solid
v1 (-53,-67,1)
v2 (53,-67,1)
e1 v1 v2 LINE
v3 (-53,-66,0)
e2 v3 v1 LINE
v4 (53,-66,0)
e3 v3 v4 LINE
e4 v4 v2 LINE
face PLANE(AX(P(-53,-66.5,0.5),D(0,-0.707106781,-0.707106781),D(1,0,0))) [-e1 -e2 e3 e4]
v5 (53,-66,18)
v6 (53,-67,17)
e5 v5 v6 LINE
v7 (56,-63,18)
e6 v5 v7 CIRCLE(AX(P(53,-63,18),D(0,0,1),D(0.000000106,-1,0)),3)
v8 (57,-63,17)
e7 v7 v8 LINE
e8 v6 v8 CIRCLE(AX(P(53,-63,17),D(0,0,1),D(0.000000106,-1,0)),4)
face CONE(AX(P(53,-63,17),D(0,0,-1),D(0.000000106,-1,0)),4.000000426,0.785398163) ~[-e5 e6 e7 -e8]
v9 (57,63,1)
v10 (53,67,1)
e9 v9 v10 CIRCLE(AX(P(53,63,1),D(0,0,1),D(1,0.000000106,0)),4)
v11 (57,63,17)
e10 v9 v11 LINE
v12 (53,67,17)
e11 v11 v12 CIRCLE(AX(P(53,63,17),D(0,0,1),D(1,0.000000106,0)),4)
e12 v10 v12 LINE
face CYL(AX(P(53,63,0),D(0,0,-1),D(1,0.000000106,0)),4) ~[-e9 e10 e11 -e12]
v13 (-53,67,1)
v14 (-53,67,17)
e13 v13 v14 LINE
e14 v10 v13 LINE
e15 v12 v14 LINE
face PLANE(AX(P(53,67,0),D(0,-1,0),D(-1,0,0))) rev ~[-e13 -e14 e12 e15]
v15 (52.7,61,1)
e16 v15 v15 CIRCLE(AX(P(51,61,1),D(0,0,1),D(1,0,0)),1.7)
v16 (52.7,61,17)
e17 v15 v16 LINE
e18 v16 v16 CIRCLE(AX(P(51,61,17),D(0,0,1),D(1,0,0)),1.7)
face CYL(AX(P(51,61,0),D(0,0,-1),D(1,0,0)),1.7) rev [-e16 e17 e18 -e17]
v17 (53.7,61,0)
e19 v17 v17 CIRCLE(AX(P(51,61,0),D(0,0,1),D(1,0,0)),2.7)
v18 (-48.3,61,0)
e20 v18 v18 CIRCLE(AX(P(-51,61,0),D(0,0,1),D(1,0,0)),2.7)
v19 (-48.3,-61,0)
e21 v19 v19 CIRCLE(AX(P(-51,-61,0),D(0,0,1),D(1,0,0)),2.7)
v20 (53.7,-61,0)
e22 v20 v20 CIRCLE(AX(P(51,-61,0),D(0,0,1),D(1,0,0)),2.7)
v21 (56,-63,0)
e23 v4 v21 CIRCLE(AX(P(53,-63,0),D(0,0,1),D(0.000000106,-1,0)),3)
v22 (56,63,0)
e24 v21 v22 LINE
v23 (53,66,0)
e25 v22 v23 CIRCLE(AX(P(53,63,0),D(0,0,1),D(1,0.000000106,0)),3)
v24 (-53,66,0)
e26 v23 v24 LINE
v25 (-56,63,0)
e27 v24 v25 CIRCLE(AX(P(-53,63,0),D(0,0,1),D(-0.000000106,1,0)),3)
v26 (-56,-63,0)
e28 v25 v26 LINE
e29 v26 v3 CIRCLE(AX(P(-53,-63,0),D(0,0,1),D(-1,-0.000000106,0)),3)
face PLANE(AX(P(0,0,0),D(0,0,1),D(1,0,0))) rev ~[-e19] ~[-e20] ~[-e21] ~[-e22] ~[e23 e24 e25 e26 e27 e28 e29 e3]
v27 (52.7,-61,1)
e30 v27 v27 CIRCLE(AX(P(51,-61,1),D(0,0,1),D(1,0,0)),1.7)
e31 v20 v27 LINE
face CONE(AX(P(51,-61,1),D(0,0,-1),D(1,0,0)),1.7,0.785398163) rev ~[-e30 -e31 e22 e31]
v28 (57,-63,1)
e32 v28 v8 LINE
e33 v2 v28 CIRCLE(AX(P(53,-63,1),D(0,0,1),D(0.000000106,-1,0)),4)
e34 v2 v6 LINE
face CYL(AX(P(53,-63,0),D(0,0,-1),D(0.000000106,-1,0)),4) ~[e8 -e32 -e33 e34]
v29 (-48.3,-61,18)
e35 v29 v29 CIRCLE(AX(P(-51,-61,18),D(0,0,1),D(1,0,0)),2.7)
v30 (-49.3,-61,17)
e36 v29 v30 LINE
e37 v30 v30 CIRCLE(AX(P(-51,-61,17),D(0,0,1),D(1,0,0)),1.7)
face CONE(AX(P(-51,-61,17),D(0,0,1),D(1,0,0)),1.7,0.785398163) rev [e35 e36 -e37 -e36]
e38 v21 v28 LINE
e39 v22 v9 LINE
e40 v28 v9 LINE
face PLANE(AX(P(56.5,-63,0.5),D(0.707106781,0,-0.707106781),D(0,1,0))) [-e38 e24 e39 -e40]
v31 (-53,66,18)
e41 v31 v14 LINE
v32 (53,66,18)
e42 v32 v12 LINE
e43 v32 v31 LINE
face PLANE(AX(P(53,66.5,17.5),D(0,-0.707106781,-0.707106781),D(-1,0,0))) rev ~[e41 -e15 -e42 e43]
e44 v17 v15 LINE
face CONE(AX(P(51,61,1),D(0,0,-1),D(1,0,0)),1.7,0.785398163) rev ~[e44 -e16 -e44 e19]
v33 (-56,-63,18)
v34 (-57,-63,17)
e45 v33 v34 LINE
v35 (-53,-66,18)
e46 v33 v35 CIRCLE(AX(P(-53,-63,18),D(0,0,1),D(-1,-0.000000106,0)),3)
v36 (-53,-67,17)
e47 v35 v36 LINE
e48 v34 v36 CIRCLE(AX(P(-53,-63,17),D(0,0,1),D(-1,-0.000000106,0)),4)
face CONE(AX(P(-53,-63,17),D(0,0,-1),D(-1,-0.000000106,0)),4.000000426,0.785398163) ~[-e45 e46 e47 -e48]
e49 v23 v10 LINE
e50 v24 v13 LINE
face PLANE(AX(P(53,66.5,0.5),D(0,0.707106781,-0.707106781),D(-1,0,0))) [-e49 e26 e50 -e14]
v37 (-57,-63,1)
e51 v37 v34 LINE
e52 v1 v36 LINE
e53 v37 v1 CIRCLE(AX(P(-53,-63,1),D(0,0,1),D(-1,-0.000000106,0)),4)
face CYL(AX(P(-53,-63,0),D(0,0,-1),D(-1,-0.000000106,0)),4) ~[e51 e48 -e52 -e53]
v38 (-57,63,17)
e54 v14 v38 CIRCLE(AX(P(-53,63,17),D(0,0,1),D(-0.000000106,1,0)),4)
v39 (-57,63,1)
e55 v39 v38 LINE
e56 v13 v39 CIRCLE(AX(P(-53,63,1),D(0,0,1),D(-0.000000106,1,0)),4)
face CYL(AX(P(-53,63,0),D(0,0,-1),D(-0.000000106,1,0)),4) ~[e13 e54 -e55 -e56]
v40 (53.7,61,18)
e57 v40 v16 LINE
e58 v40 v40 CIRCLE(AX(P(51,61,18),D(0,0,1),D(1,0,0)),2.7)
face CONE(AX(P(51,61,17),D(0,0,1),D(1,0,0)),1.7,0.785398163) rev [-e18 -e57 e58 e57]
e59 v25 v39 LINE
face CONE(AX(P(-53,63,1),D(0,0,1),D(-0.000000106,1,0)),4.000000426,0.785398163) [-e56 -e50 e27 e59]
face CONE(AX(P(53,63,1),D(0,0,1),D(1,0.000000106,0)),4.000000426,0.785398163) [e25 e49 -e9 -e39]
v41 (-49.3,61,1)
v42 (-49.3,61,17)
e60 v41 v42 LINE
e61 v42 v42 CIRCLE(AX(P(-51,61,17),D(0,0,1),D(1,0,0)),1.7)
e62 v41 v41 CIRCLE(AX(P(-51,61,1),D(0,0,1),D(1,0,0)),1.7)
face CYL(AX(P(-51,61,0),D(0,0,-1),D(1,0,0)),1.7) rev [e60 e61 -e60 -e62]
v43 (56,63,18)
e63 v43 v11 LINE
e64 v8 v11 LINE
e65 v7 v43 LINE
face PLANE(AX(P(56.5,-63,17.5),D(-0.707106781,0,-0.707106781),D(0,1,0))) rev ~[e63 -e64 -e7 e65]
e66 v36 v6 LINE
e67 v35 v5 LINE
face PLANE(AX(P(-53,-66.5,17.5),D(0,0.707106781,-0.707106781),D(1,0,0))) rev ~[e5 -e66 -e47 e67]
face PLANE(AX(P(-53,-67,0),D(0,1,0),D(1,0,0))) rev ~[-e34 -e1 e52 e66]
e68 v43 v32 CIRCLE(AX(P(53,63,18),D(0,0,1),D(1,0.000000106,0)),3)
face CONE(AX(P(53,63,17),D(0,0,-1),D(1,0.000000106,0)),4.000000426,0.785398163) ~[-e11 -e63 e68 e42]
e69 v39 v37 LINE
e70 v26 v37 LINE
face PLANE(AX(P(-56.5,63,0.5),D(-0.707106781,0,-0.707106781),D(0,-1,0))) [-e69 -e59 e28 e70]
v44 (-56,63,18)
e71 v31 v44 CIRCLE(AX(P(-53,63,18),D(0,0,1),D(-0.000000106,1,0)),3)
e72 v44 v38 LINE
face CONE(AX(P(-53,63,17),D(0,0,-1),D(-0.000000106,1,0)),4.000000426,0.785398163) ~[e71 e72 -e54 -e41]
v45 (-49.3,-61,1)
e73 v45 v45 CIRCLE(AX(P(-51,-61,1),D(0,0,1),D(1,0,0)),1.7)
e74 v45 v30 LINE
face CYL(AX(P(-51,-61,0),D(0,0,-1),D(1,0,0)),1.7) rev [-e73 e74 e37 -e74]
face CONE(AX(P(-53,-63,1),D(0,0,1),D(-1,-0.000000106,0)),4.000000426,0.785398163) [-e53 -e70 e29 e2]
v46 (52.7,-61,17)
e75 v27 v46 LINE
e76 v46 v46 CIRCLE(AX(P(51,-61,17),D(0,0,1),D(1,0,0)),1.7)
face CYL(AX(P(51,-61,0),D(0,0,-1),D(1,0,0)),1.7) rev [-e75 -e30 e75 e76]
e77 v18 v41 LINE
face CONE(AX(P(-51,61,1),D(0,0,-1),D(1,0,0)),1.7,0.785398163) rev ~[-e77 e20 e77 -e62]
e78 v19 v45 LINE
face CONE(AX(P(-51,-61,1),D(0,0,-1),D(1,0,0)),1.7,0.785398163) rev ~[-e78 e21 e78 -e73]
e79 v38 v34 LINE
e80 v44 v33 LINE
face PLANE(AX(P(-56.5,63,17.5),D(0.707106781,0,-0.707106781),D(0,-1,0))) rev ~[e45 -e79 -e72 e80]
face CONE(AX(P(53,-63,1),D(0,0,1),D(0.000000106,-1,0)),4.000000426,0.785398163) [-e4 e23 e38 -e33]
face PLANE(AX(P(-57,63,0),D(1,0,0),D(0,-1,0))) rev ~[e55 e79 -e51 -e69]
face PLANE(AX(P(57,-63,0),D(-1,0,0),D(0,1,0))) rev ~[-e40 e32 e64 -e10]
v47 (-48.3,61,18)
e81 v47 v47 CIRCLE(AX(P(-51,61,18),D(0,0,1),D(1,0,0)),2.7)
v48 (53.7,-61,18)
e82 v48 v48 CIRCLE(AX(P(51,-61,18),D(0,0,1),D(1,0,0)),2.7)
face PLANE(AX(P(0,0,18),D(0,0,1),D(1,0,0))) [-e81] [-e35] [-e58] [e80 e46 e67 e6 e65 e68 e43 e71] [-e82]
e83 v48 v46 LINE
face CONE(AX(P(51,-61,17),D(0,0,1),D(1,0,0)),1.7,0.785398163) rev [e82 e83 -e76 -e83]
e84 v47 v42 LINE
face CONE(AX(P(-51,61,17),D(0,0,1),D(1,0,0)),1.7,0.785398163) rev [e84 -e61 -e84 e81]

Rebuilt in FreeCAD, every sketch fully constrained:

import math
import FreeCAD as App
import Part
import Sketcher
from FreeCAD import Vector


def edges_at(feature, points):
    """Names of the edges that pass closest to the given points."""
    edges = feature.Shape.Edges
    near = lambda p: min(range(len(edges)), key=lambda i: edges[i].distToShape(Part.Vertex(*p))[0])
    return sorted({f"Edge{near(p) + 1}" for p in points})

doc = App.newDocument("Part")
body = doc.addObject("PartDesign::Body", "Body")
body.AllowCompound = True

sketch1 = doc.addObject("Sketcher::SketchObject", "Sketch")
body.addObject(sketch1)
sketch1.AttachmentSupport = (doc.XY_Plane, [""])
sketch1.MapMode = "FlatFace"
sketch1.addGeometry([
    Part.Circle(Vector(-51, 61, 0), Vector(0, 0, 1), 1.7),
    Part.Circle(Vector(51, 61, 0), Vector(0, 0, 1), 1.7),
    Part.Circle(Vector(51, -61, 0), Vector(0, 0, 1), 1.7),
    Part.Circle(Vector(-51, -61, 0), Vector(0, 0, 1), 1.7),
], False)
sketch1.addConstraint([
    Sketcher.Constraint("Equal", 0, 1),
    Sketcher.Constraint("Equal", 1, 2),
    Sketcher.Constraint("Equal", 2, 3),
    Sketcher.Constraint("Symmetric", 0, 3, 2, 3, -1, 1),
    Sketcher.Constraint("Symmetric", 1, 3, 3, 3, -1, 1),
    Sketcher.Constraint("Symmetric", 0, 3, 1, 3, -2),
    Sketcher.Constraint("Diameter", 0, 3.4),
    Sketcher.Constraint("DistanceX", 0, 3, -1, 1, 51.0),
    Sketcher.Constraint("DistanceY", -1, 1, 0, 3, 61.0),
])
pad1 = doc.addObject("PartDesign::Pad", "Pad")
body.addObject(pad1)
pad1.Profile = sketch1
pad1.Length = 18
body2 = doc.addObject("PartDesign::Body", "Body001")

sketch2 = doc.addObject("Sketcher::SketchObject", "Sketch001")
body2.addObject(sketch2)
sketch2.AttachmentSupport = (doc.getObject("XY_Plane001"), [""])
sketch2.MapMode = "FlatFace"
sketch2.addGeometry([
    Part.LineSegment(Vector(-57, 63, 0), Vector(-57, -63, 0)),
    Part.ArcOfCircle(Part.Circle(Vector(-53, -63, 0), Vector(0, 0, 1), 4), math.radians(-179.999994), math.radians(-90.000006)),
    Part.LineSegment(Vector(-53, -67, 0), Vector(53, -67, 0)),
    Part.ArcOfCircle(Part.Circle(Vector(53, -63, 0), Vector(0, 0, 1), 4), math.radians(-89.999994), math.radians(-0.000006)),
    Part.LineSegment(Vector(57, -63, 0), Vector(57, 63, 0)),
    Part.ArcOfCircle(Part.Circle(Vector(53, 63, 0), Vector(0, 0, 1), 4), math.radians(0.000006), math.radians(89.999994)),
    Part.LineSegment(Vector(53, 67, 0), Vector(-53, 67, 0)),
    Part.ArcOfCircle(Part.Circle(Vector(-53, 63, 0), Vector(0, 0, 1), 4), math.radians(90.000006), math.radians(179.999994)),
], False)
sketch2.addConstraint([
    Sketcher.Constraint("Tangent", 0, 2, 1, 1),
    Sketcher.Constraint("Tangent", 1, 2, 2, 1),
    Sketcher.Constraint("Tangent", 2, 2, 3, 1),
    Sketcher.Constraint("Tangent", 3, 2, 4, 1),
    Sketcher.Constraint("Tangent", 4, 2, 5, 1),
    Sketcher.Constraint("Tangent", 5, 2, 6, 1),
    Sketcher.Constraint("Tangent", 6, 2, 7, 1),
    Sketcher.Constraint("Tangent", 7, 2, 0, 1),
    Sketcher.Constraint("Vertical", 0),
    Sketcher.Constraint("Horizontal", 2),
    Sketcher.Constraint("Vertical", 4),
    Sketcher.Constraint("Horizontal", 6),
    Sketcher.Constraint("Equal", 1, 3),
    Sketcher.Constraint("Equal", 3, 5),
    Sketcher.Constraint("Equal", 5, 7),
    Sketcher.Constraint("Symmetric", 1, 3, 5, 3, -1, 1),
    Sketcher.Constraint("Radius", 1, 4.0),
    Sketcher.Constraint("DistanceX", 2, 1, 2, 2, 106.0),
    Sketcher.Constraint("DistanceY", 0, 2, 0, 1, 126.0),
])
pad2 = doc.addObject("PartDesign::Pad", "Pad001")
body2.addObject(pad2)
pad2.Profile = sketch2
pad2.Length = 18
doc.recompute()

boolean = doc.addObject("PartDesign::Boolean", "Boolean")
body2.addObject(boolean)
boolean.Type = "Cut"
boolean.addObjects([body])
doc.recompute()

chamfer = doc.addObject("PartDesign::Chamfer", "Chamfer")
body2.addObject(chamfer)
chamfer.Base = (boolean, edges_at(boolean, [
    (0, -67, 0),
    (-52.7, -61, 0),
    (49.3, -61, 0),
    (-52.7, 61, 0),
    (49.3, 61, 0),
    (0, 67, 18),
    (-52.7, -61, 18),
    (49.3, -61, 18),
    (-52.7, 61, 18),
    (49.3, 61, 18),
]))
chamfer.Size = 1

doc.recompute()
